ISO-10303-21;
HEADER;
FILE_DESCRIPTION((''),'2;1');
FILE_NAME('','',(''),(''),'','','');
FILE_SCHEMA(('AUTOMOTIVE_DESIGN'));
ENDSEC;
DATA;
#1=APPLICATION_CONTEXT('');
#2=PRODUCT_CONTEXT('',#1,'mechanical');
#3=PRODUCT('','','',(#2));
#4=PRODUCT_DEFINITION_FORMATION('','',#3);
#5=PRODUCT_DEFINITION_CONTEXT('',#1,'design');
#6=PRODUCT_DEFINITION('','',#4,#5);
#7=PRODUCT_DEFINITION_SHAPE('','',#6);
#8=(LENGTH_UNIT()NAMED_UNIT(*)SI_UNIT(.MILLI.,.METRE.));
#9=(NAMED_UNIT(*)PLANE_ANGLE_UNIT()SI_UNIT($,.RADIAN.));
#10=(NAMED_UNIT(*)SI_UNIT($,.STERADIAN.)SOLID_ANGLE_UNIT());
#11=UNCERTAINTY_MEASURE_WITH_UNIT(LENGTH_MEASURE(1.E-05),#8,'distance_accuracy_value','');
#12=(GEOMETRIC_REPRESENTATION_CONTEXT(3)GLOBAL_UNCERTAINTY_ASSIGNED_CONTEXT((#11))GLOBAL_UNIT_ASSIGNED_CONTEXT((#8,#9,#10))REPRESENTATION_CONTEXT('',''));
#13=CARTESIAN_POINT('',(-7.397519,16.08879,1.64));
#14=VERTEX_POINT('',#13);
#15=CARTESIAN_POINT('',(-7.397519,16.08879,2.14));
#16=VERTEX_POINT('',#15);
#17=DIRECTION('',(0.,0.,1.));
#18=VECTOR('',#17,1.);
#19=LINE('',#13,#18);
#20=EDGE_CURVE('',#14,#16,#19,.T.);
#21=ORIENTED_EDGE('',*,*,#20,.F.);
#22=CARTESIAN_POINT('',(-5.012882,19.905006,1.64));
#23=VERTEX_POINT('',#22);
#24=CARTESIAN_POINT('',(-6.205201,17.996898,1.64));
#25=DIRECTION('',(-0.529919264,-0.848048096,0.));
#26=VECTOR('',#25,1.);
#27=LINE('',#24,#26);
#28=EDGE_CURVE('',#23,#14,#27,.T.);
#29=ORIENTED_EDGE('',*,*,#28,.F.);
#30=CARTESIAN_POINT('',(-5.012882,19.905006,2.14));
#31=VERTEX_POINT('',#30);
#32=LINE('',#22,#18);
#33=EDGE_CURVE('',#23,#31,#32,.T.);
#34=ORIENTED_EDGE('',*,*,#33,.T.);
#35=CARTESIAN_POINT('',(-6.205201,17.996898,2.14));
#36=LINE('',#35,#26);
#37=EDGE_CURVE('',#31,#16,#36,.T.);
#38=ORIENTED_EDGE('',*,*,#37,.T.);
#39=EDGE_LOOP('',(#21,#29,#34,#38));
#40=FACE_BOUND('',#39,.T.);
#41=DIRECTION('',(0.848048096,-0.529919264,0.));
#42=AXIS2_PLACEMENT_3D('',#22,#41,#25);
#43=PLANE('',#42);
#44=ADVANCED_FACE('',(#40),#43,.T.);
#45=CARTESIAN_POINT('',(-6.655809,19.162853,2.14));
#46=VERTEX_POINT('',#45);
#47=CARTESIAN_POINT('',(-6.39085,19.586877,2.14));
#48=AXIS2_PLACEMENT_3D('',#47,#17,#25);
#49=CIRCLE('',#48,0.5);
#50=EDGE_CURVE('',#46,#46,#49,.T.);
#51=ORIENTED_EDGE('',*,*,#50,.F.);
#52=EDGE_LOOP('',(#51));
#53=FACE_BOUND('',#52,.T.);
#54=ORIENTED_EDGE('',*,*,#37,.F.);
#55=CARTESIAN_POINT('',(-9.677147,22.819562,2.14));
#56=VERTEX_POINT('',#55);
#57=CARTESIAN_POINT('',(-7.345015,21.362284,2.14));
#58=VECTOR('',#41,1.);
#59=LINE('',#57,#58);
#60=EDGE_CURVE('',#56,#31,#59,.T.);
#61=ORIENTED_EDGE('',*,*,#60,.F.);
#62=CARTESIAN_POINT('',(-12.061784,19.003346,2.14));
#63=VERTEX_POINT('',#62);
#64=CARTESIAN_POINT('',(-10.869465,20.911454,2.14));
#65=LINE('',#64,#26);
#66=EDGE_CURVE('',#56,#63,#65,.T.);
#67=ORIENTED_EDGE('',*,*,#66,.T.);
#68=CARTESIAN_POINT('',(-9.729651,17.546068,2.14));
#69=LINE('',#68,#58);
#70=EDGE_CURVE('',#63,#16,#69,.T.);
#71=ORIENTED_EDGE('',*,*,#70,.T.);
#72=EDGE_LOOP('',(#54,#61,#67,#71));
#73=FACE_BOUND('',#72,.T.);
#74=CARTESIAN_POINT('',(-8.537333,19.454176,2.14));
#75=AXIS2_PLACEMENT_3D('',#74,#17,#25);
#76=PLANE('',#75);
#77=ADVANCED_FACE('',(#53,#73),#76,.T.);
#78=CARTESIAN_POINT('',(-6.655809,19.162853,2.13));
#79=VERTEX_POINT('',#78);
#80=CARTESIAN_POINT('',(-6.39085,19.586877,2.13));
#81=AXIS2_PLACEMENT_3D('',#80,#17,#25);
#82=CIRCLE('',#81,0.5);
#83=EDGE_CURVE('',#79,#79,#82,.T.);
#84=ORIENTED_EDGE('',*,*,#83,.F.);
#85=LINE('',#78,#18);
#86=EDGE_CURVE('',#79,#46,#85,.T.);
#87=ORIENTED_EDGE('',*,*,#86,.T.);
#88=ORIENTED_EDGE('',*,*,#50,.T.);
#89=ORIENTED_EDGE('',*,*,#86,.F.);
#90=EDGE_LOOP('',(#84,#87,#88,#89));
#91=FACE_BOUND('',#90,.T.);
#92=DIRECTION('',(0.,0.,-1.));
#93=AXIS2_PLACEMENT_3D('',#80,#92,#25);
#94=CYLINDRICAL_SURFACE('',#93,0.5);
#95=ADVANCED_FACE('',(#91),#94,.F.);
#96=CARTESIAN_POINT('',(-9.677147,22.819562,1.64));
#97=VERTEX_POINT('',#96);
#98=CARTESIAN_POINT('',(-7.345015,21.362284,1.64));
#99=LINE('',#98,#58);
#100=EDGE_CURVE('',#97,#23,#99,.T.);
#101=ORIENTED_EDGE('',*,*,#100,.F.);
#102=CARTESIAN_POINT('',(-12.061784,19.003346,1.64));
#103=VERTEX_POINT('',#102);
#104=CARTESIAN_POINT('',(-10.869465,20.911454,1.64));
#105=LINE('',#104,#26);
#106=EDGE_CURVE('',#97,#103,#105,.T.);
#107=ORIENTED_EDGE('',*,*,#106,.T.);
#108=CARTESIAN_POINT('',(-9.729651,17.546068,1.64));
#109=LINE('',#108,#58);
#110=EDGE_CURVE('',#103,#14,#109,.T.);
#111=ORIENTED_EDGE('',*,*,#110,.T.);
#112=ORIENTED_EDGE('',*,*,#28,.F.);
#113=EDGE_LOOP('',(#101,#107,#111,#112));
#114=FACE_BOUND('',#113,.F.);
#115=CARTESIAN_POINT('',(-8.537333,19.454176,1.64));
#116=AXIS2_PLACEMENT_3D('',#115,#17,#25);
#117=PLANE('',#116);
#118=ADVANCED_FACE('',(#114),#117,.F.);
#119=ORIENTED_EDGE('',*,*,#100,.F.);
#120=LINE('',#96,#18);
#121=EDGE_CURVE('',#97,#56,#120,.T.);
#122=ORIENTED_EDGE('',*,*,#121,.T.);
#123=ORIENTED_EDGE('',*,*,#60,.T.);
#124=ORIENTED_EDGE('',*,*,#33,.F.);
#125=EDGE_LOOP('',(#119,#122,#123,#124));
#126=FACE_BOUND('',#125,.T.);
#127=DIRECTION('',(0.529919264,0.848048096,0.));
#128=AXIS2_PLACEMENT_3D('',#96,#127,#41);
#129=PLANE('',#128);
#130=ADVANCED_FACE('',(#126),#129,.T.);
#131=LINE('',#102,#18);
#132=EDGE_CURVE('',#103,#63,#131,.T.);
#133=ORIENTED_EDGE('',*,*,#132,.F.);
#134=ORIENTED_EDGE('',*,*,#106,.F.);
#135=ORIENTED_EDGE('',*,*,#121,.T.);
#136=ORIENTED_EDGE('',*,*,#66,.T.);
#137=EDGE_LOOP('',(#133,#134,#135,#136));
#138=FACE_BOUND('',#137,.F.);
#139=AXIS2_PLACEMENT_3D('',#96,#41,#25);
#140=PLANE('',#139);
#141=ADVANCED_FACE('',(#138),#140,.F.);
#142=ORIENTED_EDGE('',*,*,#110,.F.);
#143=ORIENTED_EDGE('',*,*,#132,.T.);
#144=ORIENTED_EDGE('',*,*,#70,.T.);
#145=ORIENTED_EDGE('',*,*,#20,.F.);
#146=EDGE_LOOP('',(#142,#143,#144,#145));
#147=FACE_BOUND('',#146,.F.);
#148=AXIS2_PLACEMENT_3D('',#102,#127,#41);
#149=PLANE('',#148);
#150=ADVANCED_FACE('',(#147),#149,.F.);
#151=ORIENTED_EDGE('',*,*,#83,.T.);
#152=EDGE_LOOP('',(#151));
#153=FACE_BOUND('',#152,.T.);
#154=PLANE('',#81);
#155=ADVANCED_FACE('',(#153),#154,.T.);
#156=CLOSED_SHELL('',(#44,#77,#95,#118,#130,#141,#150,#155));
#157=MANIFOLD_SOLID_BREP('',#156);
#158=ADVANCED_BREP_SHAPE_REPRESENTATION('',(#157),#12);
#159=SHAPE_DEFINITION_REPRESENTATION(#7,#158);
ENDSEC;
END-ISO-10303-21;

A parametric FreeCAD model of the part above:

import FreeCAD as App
import Part
import Sketcher


def add_polygon(sketch, points):
    """Adds a closed chain of lines whose ends are joined by coincident constraints."""
    first, n = sketch.GeometryCount, len(points)
    for a, b in zip(points, points[1:] + points[:1]):
        sketch.addGeometry(Part.LineSegment(App.Vector(*a, 0), App.Vector(*b, 0)), False)
    for i in range(n):
        sketch.addConstraint(Sketcher.Constraint("Coincident", first + i, 2, first + (i + 1) % n, 1))

doc = App.newDocument("Part")
params = doc.addObject("Spreadsheet::Sheet", "Params")
for row, (alias, value) in enumerate([
    ("sketch1_diameter", "1 mm"),
    ("pad1_length", "0.01 mm"),
    ("sketch2_width", "4.5 mm"),
    ("sketch2_height", "5.5 mm"),
    ("pad2_length", "0.5 mm"),
], start=1):
    params.set(f"A{row}", alias)
    params.set(f"B{row}", "=" + value)
    params.setAlias(f"B{row}", alias)

body = doc.addObject("PartDesign::Body", "Body")

# Sketch on XY plane
sketch1 = body.newObject("Sketcher::SketchObject", "Sketch")
sketch1.AttachmentSupport = (doc.getObject("XY_Plane"), [""])
sketch1.MapMode = "FlatFace"
sketch1.AttachmentOffset = App.Placement(App.Vector(0, 0, 0.49), App.Rotation())
sketch1.addGeometry(Part.Circle(App.Vector(1, 4.5, 0), App.Vector(0, 0, 1), 0.5), False)
sketch1.addConstraint([
    Sketcher.Constraint("Diameter", 0, 1.0),
    Sketcher.Constraint("DistanceX", -1, 1, 0, 3, 1.0),
    Sketcher.Constraint("DistanceY", -1, 1, 0, 3, 4.5),
])
sketch1.setExpression("Constraints[0]", "Params.sketch1_diameter")
pad1 = body.newObject("PartDesign::Pad", "Pad")
pad1.Profile = sketch1
pad1.setExpression("Length", "Params.pad1_length")
body2 = doc.addObject("PartDesign::Body", "Body001")

# Sketch on XY plane
sketch2 = body2.newObject("Sketcher::SketchObject", "Sketch001")
sketch2.AttachmentSupport = (doc.getObject("XY_Plane001"), [""])
sketch2.MapMode = "FlatFace"
add_polygon(sketch2, [(0, 5.5), (0, 0), (4.5, 0), (4.5, 5.5)])  # lines 0-3
sketch2.addConstraint([
    Sketcher.Constraint("Vertical", 0),
    Sketcher.Constraint("Horizontal", 1),
    Sketcher.Constraint("Vertical", 2),
    Sketcher.Constraint("Horizontal", 3),
    Sketcher.Constraint("Coincident", 0, 2, -1, 1),
    Sketcher.Constraint("DistanceX", 1, 1, 1, 2, 4.5),
    Sketcher.Constraint("DistanceY", 0, 2, 0, 1, 5.5),
])
sketch2.setExpression("Constraints[9]", "Params.sketch2_width")
sketch2.setExpression("Constraints[10]", "Params.sketch2_height")
pad2 = body2.newObject("PartDesign::Pad", "Pad001")
pad2.Profile = sketch2
pad2.setExpression("Length", "Params.pad2_length")
doc.recompute()

boolean = body2.newObject("PartDesign::Boolean", "Boolean")
boolean.Type = "Cut"
boolean.addObjects([body])
body3 = doc.addObject("PartDesign::Body", "Body002")
doc.recompute()

body2.Placement = App.Placement(App.Vector(-9.677147, 22.819562, 1.64), App.Rotation(App.Vector(0, 0, -1), 122))
boolean2 = body3.newObject("PartDesign::Boolean", "Boolean001")
boolean2.Type = "Fuse"
boolean2.addObjects([body2])

doc.recompute()
